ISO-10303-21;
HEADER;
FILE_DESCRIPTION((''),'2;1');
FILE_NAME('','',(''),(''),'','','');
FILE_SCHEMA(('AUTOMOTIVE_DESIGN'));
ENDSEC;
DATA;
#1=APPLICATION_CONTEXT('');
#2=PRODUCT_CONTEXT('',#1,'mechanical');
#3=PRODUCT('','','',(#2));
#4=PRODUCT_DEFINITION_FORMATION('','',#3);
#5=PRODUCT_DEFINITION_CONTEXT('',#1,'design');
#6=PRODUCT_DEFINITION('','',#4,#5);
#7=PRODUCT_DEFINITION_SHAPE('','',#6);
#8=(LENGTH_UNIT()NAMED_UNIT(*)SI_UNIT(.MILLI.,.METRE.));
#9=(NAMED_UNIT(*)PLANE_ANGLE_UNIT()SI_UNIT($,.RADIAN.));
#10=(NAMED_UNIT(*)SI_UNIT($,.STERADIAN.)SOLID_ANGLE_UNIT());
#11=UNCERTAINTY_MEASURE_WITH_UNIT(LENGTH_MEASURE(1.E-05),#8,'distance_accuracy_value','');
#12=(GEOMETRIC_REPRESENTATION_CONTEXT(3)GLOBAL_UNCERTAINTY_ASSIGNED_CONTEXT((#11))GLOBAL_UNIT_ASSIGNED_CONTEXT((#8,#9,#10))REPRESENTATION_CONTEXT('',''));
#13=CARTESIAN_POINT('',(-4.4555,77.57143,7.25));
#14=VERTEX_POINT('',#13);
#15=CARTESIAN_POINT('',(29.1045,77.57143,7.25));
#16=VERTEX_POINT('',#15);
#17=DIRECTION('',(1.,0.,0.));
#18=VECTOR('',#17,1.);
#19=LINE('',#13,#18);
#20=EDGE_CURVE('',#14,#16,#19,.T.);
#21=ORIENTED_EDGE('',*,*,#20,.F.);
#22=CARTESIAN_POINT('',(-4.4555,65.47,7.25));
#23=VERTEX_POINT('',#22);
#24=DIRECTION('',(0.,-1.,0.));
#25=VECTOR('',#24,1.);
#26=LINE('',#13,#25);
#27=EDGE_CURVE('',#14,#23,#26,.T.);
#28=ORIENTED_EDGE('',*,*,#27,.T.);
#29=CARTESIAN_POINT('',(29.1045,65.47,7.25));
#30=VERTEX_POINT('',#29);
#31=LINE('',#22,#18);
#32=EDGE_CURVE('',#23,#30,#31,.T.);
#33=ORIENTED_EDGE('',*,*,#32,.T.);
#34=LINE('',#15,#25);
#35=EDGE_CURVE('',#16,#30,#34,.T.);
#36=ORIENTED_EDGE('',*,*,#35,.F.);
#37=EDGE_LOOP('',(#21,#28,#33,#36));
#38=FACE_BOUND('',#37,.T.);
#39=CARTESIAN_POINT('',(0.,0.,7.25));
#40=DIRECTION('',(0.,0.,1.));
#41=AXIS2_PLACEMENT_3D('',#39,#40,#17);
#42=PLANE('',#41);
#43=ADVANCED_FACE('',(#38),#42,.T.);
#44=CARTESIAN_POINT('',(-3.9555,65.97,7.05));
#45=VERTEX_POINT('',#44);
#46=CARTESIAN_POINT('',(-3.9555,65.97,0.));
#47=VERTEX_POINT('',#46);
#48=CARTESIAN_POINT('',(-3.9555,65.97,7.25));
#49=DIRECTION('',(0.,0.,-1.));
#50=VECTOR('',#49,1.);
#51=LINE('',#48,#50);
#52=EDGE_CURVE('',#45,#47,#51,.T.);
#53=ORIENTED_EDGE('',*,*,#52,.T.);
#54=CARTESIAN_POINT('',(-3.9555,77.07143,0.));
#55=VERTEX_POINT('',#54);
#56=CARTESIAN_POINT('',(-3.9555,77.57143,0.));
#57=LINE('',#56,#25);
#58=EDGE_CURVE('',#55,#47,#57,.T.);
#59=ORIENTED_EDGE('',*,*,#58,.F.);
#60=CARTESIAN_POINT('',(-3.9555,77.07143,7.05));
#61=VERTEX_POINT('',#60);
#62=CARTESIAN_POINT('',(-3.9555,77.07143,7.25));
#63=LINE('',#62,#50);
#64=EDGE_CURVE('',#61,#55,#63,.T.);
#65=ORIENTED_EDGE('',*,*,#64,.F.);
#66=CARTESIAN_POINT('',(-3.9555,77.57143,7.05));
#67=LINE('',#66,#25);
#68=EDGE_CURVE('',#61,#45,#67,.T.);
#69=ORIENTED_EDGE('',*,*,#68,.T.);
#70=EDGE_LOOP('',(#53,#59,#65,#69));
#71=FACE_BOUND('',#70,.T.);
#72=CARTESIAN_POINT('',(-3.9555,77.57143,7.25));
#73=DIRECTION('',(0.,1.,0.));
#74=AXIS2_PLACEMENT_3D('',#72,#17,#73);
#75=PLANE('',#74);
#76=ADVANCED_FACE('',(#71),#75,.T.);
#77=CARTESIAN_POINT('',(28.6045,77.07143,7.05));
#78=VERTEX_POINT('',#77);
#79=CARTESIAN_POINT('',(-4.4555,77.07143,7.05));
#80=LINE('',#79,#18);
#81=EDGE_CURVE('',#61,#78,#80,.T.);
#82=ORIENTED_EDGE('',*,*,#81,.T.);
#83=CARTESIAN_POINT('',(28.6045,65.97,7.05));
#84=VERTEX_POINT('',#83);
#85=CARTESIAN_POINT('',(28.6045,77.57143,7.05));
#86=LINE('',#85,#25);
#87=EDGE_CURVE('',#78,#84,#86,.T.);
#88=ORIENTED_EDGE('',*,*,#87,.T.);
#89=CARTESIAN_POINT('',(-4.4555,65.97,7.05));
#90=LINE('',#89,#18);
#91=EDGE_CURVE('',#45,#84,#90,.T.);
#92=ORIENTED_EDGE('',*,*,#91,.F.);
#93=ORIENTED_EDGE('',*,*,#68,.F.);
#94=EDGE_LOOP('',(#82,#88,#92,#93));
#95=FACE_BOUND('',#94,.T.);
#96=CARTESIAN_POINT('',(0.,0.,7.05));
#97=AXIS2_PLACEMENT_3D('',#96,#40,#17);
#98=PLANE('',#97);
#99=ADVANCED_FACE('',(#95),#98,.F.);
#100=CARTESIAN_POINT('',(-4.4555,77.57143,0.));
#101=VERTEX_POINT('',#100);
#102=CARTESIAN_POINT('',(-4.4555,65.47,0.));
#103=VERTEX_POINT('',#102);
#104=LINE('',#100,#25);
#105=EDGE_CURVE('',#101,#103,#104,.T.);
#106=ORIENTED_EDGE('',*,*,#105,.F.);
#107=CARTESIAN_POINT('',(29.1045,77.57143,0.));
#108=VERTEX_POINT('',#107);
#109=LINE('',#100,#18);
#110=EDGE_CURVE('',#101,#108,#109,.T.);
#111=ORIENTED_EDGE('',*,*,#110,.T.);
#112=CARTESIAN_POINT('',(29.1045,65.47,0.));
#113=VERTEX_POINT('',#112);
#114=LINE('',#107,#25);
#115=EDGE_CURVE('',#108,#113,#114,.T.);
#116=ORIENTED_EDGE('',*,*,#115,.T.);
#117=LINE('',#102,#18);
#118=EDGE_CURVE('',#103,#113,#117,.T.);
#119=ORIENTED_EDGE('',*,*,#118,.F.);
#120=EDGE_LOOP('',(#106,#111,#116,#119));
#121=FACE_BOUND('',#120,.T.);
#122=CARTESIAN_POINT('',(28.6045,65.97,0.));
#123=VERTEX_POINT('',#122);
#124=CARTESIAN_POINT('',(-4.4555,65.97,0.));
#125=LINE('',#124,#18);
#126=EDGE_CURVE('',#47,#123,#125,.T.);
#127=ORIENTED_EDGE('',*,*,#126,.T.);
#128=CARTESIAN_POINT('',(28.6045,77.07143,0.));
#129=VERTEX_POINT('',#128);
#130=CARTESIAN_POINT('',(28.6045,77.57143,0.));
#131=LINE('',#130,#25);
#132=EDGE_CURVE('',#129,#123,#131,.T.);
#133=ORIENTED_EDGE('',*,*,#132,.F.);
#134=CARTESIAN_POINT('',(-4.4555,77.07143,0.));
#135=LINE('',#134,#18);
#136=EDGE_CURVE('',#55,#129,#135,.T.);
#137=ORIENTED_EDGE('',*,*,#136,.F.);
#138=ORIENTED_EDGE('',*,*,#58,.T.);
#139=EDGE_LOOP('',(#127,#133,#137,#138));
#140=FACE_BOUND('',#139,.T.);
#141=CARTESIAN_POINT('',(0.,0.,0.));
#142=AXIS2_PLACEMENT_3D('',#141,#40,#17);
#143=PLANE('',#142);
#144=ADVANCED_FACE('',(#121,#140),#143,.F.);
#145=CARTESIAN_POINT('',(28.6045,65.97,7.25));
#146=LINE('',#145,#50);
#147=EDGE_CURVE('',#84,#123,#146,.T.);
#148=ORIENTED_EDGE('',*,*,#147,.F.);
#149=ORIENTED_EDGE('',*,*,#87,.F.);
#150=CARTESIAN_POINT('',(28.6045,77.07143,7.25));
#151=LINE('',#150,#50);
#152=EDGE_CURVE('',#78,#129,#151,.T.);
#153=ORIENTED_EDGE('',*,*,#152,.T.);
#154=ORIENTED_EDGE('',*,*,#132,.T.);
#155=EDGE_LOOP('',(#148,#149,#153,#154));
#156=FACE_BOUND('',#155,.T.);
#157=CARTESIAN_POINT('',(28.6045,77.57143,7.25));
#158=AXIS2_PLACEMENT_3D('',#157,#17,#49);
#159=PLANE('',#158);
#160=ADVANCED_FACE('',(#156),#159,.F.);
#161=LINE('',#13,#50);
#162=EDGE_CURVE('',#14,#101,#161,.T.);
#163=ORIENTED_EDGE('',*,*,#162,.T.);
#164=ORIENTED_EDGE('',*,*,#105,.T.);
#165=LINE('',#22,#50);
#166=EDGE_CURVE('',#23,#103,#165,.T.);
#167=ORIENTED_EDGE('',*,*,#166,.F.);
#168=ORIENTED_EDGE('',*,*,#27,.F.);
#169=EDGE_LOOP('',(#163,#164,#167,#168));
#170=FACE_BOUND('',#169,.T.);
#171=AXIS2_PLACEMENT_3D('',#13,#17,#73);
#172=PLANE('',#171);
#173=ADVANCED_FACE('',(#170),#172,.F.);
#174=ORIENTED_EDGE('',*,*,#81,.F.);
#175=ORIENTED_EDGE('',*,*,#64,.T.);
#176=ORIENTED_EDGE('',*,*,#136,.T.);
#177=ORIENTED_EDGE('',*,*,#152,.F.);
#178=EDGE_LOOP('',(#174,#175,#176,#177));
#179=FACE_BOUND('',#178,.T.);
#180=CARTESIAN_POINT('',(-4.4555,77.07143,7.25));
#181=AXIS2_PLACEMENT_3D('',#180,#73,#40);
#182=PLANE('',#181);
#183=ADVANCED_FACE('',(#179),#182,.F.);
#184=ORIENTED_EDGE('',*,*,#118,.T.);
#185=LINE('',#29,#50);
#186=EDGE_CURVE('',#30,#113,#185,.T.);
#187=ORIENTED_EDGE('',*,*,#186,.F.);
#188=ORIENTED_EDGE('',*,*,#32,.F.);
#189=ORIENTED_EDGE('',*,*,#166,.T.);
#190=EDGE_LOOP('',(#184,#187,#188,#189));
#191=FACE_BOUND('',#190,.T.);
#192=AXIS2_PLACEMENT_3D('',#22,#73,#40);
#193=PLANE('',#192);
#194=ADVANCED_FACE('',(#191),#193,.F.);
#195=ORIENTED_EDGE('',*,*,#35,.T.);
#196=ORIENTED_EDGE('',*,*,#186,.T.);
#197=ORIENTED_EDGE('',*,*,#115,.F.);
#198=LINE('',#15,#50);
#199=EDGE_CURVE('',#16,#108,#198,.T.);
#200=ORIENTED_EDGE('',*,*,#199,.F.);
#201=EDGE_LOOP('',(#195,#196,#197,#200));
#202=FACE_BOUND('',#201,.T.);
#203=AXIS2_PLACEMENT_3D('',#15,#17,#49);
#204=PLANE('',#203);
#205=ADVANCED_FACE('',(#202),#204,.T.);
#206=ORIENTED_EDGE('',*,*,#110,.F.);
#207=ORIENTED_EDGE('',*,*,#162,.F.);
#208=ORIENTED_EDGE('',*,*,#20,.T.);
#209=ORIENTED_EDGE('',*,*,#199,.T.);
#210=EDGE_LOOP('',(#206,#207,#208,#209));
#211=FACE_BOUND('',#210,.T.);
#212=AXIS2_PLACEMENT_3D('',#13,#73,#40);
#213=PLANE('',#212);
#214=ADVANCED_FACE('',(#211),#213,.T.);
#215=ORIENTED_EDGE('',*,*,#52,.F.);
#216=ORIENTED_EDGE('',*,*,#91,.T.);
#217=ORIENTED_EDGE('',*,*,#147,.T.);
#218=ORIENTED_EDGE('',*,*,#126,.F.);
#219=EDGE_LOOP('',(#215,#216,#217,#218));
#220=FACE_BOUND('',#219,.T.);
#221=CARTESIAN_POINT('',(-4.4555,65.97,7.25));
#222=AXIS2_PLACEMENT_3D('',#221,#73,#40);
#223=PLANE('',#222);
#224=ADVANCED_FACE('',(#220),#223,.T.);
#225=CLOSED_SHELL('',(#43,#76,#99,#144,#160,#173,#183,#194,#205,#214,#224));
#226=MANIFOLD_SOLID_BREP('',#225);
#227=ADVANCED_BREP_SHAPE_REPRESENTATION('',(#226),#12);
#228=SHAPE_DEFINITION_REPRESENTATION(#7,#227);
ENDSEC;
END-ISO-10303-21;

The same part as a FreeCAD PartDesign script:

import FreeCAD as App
import Part
import Sketcher
Q = App.Units.Quantity


def faces_at(feature, points):
    """Names of the faces that lie closest to the given points."""
    faces = feature.Shape.Faces
    near = lambda p: min(range(len(faces)), key=lambda i: faces[i].distToShape(Part.Vertex(*p))[0])
    return sorted({f"Face{near(p) + 1}" for p in points})


def add_polygon(sketch, points):
    """Adds a closed chain of lines whose ends are joined by coincident constraints."""
    first, n = sketch.GeometryCount, len(points)
    for a, b in zip(points, points[1:] + points[:1]):
        sketch.addGeometry(Part.LineSegment(App.Vector(*a, 0), App.Vector(*b, 0)), False)
    for i in range(n):
        sketch.addConstraint(Sketcher.Constraint("Coincident", first + i, 2, first + (i + 1) % n, 1))

doc = App.newDocument("Part")
body = doc.addObject("PartDesign::Body", "Body")

# Sketch on XY plane
sketch1 = body.newObject("Sketcher::SketchObject", "Sketch")
sketch1.AttachmentSupport = (doc.getObject("XY_Plane"), [""])
sketch1.MapMode = "FlatFace"
add_polygon(sketch1, [(-4.4555, 77.57143), (-4.4555, 65.47), (29.1045, 65.47), (29.1045, 77.57143)])  # lines 0-3
sketch1.addConstraint([
    Sketcher.Constraint("Vertical", 0),
    Sketcher.Constraint("Horizontal", 1),
    Sketcher.Constraint("Vertical", 2),
    Sketcher.Constraint("Horizontal", 3),
    Sketcher.Constraint("DistanceX", 1, 1, 1, 2, Q("33.56 mm")),
    Sketcher.Constraint("DistanceY", -1, 1, 0, 2, Q("65.47 mm")),
    Sketcher.Constraint("DistanceY", 0, 2, 0, 1, Q("12.10143 mm")),
    Sketcher.Constraint("DistanceX", 0, 2, -1, 1, Q("4.4555 mm")),
])
pad1 = body.newObject("PartDesign::Pad", "Pad")
pad1.Profile = sketch1
pad1.Length = 7.25
doc.recompute()

thickness = body.newObject("PartDesign::Thickness", "Thickness")
thickness.Base = (pad1, faces_at(pad1, [(12.325, 71.521, 0)]))
thickness.Value = 0.5
thickness.Reversed = True
thickness.Join = "Intersection"

# Sketch on XY plane
sketch2 = body.newObject("Sketcher::SketchObject", "Sketch001")
sketch2.AttachmentSupport = (doc.getObject("XY_Plane"), [""])
sketch2.MapMode = "FlatFace"
sketch2.AttachmentOffset = App.Placement(App.Vector(0, 0, 6.75), App.Rotation())
add_polygon(sketch2, [(-3.9555, 77.07143), (-3.9555, 65.97), (28.6045, 65.97), (28.6045, 77.07143)])  # lines 0-3
sketch2.addConstraint([
    Sketcher.Constraint("Vertical", 0),
    Sketcher.Constraint("Horizontal", 1),
    Sketcher.Constraint("Vertical", 2),
    Sketcher.Constraint("Horizontal", 3),
    Sketcher.Constraint("DistanceX", 1, 1, 1, 2, Q("32.56 mm")),
    Sketcher.Constraint("DistanceY", -1, 1, 0, 2, Q("65.97 mm")),
    Sketcher.Constraint("DistanceY", 0, 2, 0, 1, Q("11.10143 mm")),
    Sketcher.Constraint("DistanceX", 0, 2, -1, 1, Q("3.9555 mm")),
])
pocket1 = body.newObject("PartDesign::Pocket", "Pocket")
pocket1.Profile = sketch2
pocket1.Length = 0.3
pocket1.Reversed = True

doc.recompute()
